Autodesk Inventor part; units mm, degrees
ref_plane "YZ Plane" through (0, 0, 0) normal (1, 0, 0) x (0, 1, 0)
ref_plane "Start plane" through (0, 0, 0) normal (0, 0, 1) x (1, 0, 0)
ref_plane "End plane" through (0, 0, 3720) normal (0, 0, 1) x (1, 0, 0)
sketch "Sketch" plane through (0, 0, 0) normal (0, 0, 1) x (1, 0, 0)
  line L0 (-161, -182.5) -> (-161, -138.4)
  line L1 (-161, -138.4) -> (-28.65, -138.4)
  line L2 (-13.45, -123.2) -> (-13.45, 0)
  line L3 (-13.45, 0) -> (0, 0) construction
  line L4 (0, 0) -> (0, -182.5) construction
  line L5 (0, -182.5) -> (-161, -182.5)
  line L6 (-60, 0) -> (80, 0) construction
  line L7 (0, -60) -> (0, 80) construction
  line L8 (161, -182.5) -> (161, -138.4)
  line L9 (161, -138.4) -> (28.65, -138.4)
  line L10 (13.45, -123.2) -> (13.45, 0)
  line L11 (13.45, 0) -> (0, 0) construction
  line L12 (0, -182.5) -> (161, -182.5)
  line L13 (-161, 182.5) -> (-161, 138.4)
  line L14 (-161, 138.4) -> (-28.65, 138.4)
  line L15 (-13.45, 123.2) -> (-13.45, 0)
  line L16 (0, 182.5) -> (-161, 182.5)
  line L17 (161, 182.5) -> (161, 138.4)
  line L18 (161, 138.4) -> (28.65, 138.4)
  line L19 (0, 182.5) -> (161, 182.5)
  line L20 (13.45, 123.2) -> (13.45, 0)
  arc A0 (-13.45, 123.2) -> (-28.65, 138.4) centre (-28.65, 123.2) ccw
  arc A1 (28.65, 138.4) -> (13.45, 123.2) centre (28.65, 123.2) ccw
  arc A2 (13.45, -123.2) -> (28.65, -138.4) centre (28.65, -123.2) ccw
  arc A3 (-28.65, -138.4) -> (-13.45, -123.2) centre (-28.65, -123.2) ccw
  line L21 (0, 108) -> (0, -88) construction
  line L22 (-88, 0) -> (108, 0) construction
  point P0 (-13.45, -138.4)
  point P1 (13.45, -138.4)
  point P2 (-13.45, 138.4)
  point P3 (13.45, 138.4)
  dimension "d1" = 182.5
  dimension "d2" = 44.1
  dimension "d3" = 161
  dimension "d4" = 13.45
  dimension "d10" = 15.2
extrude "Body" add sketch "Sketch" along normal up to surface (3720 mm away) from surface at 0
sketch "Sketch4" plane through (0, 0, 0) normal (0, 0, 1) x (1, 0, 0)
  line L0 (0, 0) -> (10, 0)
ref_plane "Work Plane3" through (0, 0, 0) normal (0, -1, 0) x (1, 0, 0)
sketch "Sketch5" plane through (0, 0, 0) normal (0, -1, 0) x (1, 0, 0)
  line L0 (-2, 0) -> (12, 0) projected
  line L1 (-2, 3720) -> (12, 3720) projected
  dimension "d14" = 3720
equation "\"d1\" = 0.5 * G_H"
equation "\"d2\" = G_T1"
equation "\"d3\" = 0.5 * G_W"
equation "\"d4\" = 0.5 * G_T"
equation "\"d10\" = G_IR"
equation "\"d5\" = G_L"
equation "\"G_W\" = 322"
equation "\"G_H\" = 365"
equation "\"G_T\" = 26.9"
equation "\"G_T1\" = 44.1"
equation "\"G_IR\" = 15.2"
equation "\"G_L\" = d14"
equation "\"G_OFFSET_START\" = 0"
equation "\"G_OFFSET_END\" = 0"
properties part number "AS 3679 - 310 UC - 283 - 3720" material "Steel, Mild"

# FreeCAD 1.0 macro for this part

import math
import FreeCAD as App
import Part
import Sketcher
from FreeCAD import Vector
Q = App.Units.Quantity

doc = App.newDocument("Part")
body = doc.addObject("PartDesign::Body", "Body")

sketch1 = body.newObject("Sketcher::SketchObject", "Sketch")
sketch1.AttachmentSupport = (doc.getObject("XY_Plane"), [""])
sketch1.MapMode = "FlatFace"
sketch1.addGeometry([
    Part.LineSegment(Vector(-161, -138, 0), Vector(-161, -182, 0)),
    Part.LineSegment(Vector(-161, -182, 0), Vector(161, -182, 0)),
    Part.LineSegment(Vector(161, -182, 0), Vector(161, -138, 0)),
    Part.LineSegment(Vector(161, -138, 0), Vector(29, -138, 0)),
    Part.ArcOfCircle(Part.Circle(Vector(29, -123, 0), Vector(0, 0, 1), 15), math.radians(180), math.radians(270)),
    Part.LineSegment(Vector(13, -123, 0), Vector(13, 123, 0)),
    Part.ArcOfCircle(Part.Circle(Vector(29, 123, 0), Vector(0, 0, 1), 15), math.radians(90), math.radians(180)),
    Part.LineSegment(Vector(29, 138, 0), Vector(161, 138, 0)),
    Part.LineSegment(Vector(161, 138, 0), Vector(161, 182, 0)),
    Part.LineSegment(Vector(161, 182, 0), Vector(-161, 182, 0)),
    Part.LineSegment(Vector(-161, 182, 0), Vector(-161, 138, 0)),
    Part.LineSegment(Vector(-161, 138, 0), Vector(-29, 138, 0)),
    Part.ArcOfCircle(Part.Circle(Vector(-29, 123, 0), Vector(0, 0, 1), 15), math.radians(0), math.radians(90)),
    Part.LineSegment(Vector(-13, 123, 0), Vector(-13, -123, 0)),
    Part.ArcOfCircle(Part.Circle(Vector(-29, -123, 0), Vector(0, 0, 1), 15), math.radians(-90), math.radians(0)),
    Part.LineSegment(Vector(-29, -138, 0), Vector(-161, -138, 0)),
], False)
sketch1.addConstraint([
    Sketcher.Constraint("Coincident", 0, 2, 1, 1),
    Sketcher.Constraint("Coincident", 1, 2, 2, 1),
    Sketcher.Constraint("Coincident", 2, 2, 3, 1),
    Sketcher.Constraint("Tangent", 3, 2, 4, 2),
    Sketcher.Constraint("Tangent", 4, 1, 5, 1),
    Sketcher.Constraint("Tangent", 5, 2, 6, 2),
    Sketcher.Constraint("Tangent", 6, 1, 7, 1),
    Sketcher.Constraint("Coincident", 7, 2, 8, 1),
    Sketcher.Constraint("Coincident", 8, 2, 9, 1),
    Sketcher.Constraint("Coincident", 9, 2, 10, 1),
    Sketcher.Constraint("Coincident", 10, 2, 11, 1),
    Sketcher.Constraint("Tangent", 11, 2, 12, 2),
    Sketcher.Constraint("Tangent", 12, 1, 13, 1),
    Sketcher.Constraint("Tangent", 13, 2, 14, 2),
    Sketcher.Constraint("Tangent", 14, 1, 15, 1),
    Sketcher.Constraint("Coincident", 15, 2, 0, 1),
    Sketcher.Constraint("Vertical", 0),
    Sketcher.Constraint("Horizontal", 1),
    Sketcher.Constraint("Vertical", 2),
    Sketcher.Constraint("Horizontal", 3),
    Sketcher.Constraint("Vertical", 5),
    Sketcher.Constraint("Horizontal", 7),
    Sketcher.Constraint("Vertical", 8),
    Sketcher.Constraint("Horizontal", 9),
    Sketcher.Constraint("Vertical", 10),
    Sketcher.Constraint("Horizontal", 11),
    Sketcher.Constraint("Vertical", 13),
    Sketcher.Constraint("Horizontal", 15),
    Sketcher.Constraint("Equal", 4, 6),
    Sketcher.Constraint("Equal", 6, 12),
    Sketcher.Constraint("Equal", 12, 14),
    Sketcher.Constraint("Symmetric", 4, 3, 12, 3, -1, 1),
    Sketcher.Constraint("Symmetric", 0, 2, 8, 2, -1, 1),
    Sketcher.Constraint("Symmetric", 7, 2, 10, 2, -2),
    Sketcher.Constraint("Symmetric", 2, 2, 15, 2, -2),
    Sketcher.Constraint("Radius", 4, Q("15.2 mm")),
    Sketcher.Constraint("DistanceY", 0, 2, 0, 1, Q("44.1 mm")),
    Sketcher.Constraint("DistanceX", 0, 2, -1, 1, Q("161 mm")),
    Sketcher.Constraint("DistanceY", 0, 2, -1, 1, Q("182.5 mm")),
    Sketcher.Constraint("DistanceX", -1, 1, 4, 1, Q("13.45 mm")),
])
pad1 = body.newObject("PartDesign::Pad", "Pad")
pad1.Profile = sketch1
pad1.Length = 3720

doc.recompute()
